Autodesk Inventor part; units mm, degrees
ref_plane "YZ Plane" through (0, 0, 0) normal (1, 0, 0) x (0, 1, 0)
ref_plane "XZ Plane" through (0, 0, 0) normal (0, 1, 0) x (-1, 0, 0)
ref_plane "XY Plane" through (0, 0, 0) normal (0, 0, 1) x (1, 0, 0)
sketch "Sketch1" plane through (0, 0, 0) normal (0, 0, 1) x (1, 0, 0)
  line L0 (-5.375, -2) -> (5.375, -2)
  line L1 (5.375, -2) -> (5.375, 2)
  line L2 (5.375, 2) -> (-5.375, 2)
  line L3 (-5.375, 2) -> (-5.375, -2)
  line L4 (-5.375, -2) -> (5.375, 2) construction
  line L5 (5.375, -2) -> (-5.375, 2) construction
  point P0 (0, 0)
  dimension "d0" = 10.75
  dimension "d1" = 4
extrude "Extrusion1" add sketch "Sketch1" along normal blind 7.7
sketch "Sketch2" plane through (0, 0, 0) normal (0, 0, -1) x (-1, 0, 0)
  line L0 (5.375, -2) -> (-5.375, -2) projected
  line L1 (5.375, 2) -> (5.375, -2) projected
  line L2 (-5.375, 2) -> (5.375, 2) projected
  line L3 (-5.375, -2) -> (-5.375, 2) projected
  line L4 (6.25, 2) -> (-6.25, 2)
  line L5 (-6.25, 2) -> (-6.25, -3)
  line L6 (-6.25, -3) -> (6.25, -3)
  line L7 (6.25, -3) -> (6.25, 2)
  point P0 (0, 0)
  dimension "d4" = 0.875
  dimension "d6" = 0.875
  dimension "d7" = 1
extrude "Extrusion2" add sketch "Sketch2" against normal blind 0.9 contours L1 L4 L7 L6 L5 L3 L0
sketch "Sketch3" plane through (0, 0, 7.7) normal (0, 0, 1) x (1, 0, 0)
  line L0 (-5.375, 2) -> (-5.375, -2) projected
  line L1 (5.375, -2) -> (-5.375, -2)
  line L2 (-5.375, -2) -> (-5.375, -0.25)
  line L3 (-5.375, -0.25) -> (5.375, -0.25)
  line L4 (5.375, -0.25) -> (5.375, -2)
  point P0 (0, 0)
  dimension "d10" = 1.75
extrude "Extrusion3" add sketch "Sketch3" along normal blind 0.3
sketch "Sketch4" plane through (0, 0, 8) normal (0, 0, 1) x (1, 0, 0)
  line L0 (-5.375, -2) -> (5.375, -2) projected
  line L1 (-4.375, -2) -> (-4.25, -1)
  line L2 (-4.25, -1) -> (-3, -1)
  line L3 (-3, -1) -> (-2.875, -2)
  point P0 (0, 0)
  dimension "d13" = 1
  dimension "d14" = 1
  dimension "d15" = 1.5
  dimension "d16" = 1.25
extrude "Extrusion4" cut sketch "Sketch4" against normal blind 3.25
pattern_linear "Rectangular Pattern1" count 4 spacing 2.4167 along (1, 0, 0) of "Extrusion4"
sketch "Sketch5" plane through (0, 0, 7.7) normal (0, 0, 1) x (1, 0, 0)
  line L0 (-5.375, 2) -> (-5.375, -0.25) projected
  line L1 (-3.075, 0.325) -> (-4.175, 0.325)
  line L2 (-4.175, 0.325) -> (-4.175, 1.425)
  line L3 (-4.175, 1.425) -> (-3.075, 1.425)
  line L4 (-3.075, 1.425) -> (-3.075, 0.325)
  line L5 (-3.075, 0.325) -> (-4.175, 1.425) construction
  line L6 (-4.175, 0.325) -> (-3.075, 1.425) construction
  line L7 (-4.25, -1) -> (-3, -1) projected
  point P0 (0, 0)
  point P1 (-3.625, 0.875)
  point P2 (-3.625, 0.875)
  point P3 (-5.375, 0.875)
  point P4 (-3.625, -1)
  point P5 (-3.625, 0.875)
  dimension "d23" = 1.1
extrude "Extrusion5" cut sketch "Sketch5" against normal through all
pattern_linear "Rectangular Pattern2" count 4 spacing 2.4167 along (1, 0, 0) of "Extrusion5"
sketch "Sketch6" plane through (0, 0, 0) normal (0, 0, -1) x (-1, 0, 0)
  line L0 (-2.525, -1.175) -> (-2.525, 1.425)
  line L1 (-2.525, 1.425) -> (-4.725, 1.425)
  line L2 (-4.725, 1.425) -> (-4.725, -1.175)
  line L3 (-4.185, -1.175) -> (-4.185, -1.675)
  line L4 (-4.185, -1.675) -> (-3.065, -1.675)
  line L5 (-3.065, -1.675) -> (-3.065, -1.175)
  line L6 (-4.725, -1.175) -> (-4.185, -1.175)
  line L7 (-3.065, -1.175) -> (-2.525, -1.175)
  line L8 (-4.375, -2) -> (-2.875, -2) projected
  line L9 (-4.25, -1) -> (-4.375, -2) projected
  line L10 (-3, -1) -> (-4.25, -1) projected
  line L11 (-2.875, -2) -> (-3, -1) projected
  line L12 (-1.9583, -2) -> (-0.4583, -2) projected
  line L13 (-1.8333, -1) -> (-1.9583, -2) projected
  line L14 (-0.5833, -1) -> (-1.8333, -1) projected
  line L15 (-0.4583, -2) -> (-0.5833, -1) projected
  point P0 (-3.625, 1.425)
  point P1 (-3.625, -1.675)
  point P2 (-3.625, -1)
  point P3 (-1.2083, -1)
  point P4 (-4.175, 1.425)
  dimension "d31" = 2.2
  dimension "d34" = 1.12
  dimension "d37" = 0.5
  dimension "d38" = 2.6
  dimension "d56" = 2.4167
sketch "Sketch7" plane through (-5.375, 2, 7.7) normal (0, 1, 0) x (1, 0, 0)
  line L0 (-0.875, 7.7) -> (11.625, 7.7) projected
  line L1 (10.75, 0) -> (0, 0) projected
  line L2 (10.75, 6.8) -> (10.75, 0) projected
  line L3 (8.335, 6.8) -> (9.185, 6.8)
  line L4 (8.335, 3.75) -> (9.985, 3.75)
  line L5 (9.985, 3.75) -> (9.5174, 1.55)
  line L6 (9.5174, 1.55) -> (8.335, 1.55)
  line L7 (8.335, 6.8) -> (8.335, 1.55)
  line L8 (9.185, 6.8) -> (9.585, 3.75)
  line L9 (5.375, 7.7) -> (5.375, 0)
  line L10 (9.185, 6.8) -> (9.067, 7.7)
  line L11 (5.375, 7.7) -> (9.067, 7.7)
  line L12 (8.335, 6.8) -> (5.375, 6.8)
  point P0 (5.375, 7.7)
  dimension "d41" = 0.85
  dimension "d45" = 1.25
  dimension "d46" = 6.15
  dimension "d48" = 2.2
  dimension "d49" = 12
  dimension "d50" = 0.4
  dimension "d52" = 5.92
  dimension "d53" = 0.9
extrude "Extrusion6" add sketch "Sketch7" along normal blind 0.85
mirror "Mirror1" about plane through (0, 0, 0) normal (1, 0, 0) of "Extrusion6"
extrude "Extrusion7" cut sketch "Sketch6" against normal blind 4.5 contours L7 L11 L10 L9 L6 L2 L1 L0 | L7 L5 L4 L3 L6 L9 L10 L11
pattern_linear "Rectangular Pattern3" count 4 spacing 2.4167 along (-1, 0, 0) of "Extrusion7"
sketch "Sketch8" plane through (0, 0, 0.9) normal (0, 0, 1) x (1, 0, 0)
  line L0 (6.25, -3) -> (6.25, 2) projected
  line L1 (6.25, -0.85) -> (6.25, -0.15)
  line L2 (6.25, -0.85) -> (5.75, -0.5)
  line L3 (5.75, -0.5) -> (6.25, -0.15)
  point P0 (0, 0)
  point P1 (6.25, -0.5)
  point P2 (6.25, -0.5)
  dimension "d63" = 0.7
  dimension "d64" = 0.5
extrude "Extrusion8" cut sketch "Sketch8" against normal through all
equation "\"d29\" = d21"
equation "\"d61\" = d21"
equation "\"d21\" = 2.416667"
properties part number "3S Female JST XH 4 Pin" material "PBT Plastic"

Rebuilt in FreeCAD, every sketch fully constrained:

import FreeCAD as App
import Part
import Sketcher

V = App.Vector
Q = App.Units.Quantity


def add_polygon(sketch, points):
    """Adds a closed chain of lines whose ends are joined by coincident constraints."""
    first, n = sketch.GeometryCount, len(points)
    for a, b in zip(points, points[1:] + points[:1]):
        sketch.addGeometry(Part.LineSegment(App.Vector(*a, 0), App.Vector(*b, 0)), False)
    for i in range(n):
        sketch.addConstraint(Sketcher.Constraint("Coincident", first + i, 2, first + (i + 1) % n, 1))

doc = App.newDocument("Part")
body = doc.addObject("PartDesign::Body", "Body")

# Sketch on XY plane
sketch1 = body.newObject("Sketcher::SketchObject", "Sketch")
sketch1.AttachmentSupport = (doc.getObject("XY_Plane"), [""])
sketch1.MapMode = "FlatFace"
add_polygon(sketch1, [(-5.4, 2), (-5.4, -2), (5.4, -2), (5.4, 2)])  # lines 0-3
sketch1.addConstraint(Sketcher.Constraint("Vertical", 0))
sketch1.addConstraint(Sketcher.Constraint("Horizontal", 1))
sketch1.addConstraint(Sketcher.Constraint("Vertical", 2))
sketch1.addConstraint(Sketcher.Constraint("Horizontal", 3))
sketch1.addConstraint(Sketcher.Constraint("Symmetric", 0, 2, 2, 2, -1, 1))
sketch1.addConstraint(Sketcher.Constraint("DistanceY", 0, 2, 0, 1, 4.0))
sketch1.addConstraint(Sketcher.Constraint("DistanceX", 1, 1, 1, 2, 10.75))
pad1 = body.newObject("PartDesign::Pad", "Pad")
pad1.Profile = sketch1
pad1.Length = 7.7

# Sketch on XY plane
sketch2 = body.newObject("Sketcher::SketchObject", "Sketch001")
sketch2.AttachmentSupport = (doc.getObject("XY_Plane"), [""])
sketch2.MapMode = "FlatFace"
add_polygon(sketch2, [(-5.4, 2), (-5.4, -2), (5.4, -2), (5.4, 2), (6.2, 2), (6.2, -3), (-6.2, -3), (-6.2, 2)])  # lines 0-7
sketch2.addConstraint(Sketcher.Constraint("Vertical", 0))
sketch2.addConstraint(Sketcher.Constraint("Horizontal", 1))
sketch2.addConstraint(Sketcher.Constraint("Vertical", 2))
sketch2.addConstraint(Sketcher.Constraint("Horizontal", 3))
sketch2.addConstraint(Sketcher.Constraint("Vertical", 4))
sketch2.addConstraint(Sketcher.Constraint("Horizontal", 5))
sketch2.addConstraint(Sketcher.Constraint("Vertical", 6))
sketch2.addConstraint(Sketcher.Constraint("Horizontal", 7))
sketch2.addConstraint(Sketcher.Constraint("Symmetric", 0, 2, 2, 2, -1, 1))
sketch2.addConstraint(Sketcher.Constraint("Symmetric", 3, 2, 6, 2, -2))
sketch2.addConstraint(Sketcher.Constraint("DistanceY", 4, 2, 1, 2, 1.0))
sketch2.addConstraint(Sketcher.Constraint("DistanceX", 3, 1, 3, 2, 0.875))
sketch2.addConstraint(Sketcher.Constraint("DistanceY", 0, 2, 0, 1, 4.0))
sketch2.addConstraint(Sketcher.Constraint("DistanceX", 5, 2, 5, 1, 12.5))
pad2 = body.newObject("PartDesign::Pad", "Pad001")
pad2.Profile = sketch2
pad2.Length = 0.9

# Sketch on XY plane
sketch3 = body.newObject("Sketcher::SketchObject", "Sketch002")
sketch3.AttachmentSupport = (doc.getObject("XY_Plane"), [""])
sketch3.MapMode = "FlatFace"
sketch3.AttachmentOffset = App.Placement(V(0, 0, 7.7), App.Rotation())
add_polygon(sketch3, [(5.4, -0.2), (-5.4, -0.2), (-5.4, -2), (5.4, -2)])  # lines 0-3
sketch3.addConstraint(Sketcher.Constraint("Horizontal", 0))
sketch3.addConstraint(Sketcher.Constraint("Vertical", 1))
sketch3.addConstraint(Sketcher.Constraint("Horizontal", 2))
sketch3.addConstraint(Sketcher.Constraint("Vertical", 3))
sketch3.addConstraint(Sketcher.Constraint("DistanceY", 1, 2, 1, 1, 1.75))
sketch3.addConstraint(Sketcher.Constraint("DistanceY", 1, 2, -1, 1, 2.0))
sketch3.addConstraint(Sketcher.Constraint("DistanceX", 0, 2, 0, 1, 10.75))
sketch3.addConstraint(Sketcher.Constraint("DistanceX", 0, 2, -1, 1, 5.375))
pad3 = body.newObject("PartDesign::Pad", "Pad002")
pad3.Profile = sketch3
pad3.Length = 0.3

# Sketch on XY plane
sketch4 = body.newObject("Sketcher::SketchObject", "Sketch003")
sketch4.AttachmentSupport = (doc.getObject("XY_Plane"), [""])
sketch4.MapMode = "FlatFace"
sketch4.AttachmentOffset = App.Placement(V(0, 0, 8), App.Rotation())
add_polygon(sketch4, [(-4.2, -1), (-4.4, -2), (-2.9, -2), (-3, -1)])  # lines 0-3
sketch4.addConstraint(Sketcher.Constraint("Horizontal", 1))
sketch4.addConstraint(Sketcher.Constraint("Horizontal", 3))
sketch4.addConstraint(Sketcher.Constraint("Equal", 0, 2))
sketch4.addConstraint(Sketcher.Constraint("DistanceX", 1, 1, 1, 2, 1.5))
sketch4.addConstraint(Sketcher.Constraint("DistanceY", 2, 2, -1, 1, 1.0))
sketch4.addConstraint(Sketcher.Constraint("DistanceY", 1, 2, 2, 2, 1.0))
sketch4.addConstraint(Sketcher.Constraint("DistanceX", 3, 2, 3, 1, 1.25))
sketch4.addConstraint(Sketcher.Constraint("DistanceX", 2, 2, -1, 1, 3.0))
pocket1 = body.newObject("PartDesign::Pocket", "Pocket")
pocket1.Profile = sketch4
pocket1.Length = 3.25
doc.recompute()

linearpattern = body.newObject("PartDesign::LinearPattern", "LinearPattern")
linearpattern.Originals = [pocket1]
linearpattern.Direction = (doc.getObject("X_Axis"), [""])
linearpattern.Mode = "offset"
linearpattern.Offset = 2.4167
linearpattern.Occurrences = 4
body.Tip = linearpattern

# Sketch on XY plane
sketch5 = body.newObject("Sketcher::SketchObject", "Sketch004")
sketch5.AttachmentSupport = (doc.getObject("XY_Plane"), [""])
sketch5.MapMode = "FlatFace"
sketch5.AttachmentOffset = App.Placement(V(0, 0, 7.7), App.Rotation())
add_polygon(sketch5, [(-4.2, 0.3), (-3.1, 0.3), (-3.1, 1.4), (-4.2, 1.4)])  # lines 0-3
sketch5.addConstraint(Sketcher.Constraint("Horizontal", 0))
sketch5.addConstraint(Sketcher.Constraint("Vertical", 1))
sketch5.addConstraint(Sketcher.Constraint("Horizontal", 2))
sketch5.addConstraint(Sketcher.Constraint("Vertical", 3))
sketch5.addConstraint(Sketcher.Constraint("Equal", 2, 1))
sketch5.addConstraint(Sketcher.Constraint("DistanceX", 0, 1, 0, 2, 1.1))
sketch5.addConstraint(Sketcher.Constraint("DistanceX", 0, 2, -1, 1, 3.075))
sketch5.addConstraint(Sketcher.Constraint("DistanceY", -1, 1, 0, 2, 0.325))
pocket2 = body.newObject("PartDesign::Pocket", "Pocket001")
pocket2.Profile = sketch5
pocket2.Type = "ThroughAll"
doc.recompute()

linearpattern2 = body.newObject("PartDesign::LinearPattern", "LinearPattern001")
linearpattern2.Originals = [pocket2]
linearpattern2.Direction = (doc.getObject("X_Axis"), [""])
linearpattern2.Mode = "offset"
linearpattern2.Offset = 2.4167
linearpattern2.Occurrences = 4
body.Tip = linearpattern2

# Sketch on XZ plane
sketch6 = body.newObject("Sketcher::SketchObject", "Sketch005")
sketch6.AttachmentSupport = (doc.getObject("XZ_Plane"), [""])
sketch6.MapMode = "FlatFace"
sketch6.AttachmentOffset = App.Placement(V(0, 0, -2), App.Rotation())
add_polygon(sketch6, [(3.69, 0), (0, 0), (0, 0.9), (2.96, 0.9), (2.96, 6.15), (4.14, 6.15), (4.61, 3.95), (4.21, 3.95), (3.81, 0.9)])  # lines 0-8
sketch6.addConstraint(Sketcher.Constraint("Horizontal", 0))
sketch6.addConstraint(Sketcher.Constraint("Vertical", 1))
sketch6.addConstraint(Sketcher.Constraint("Horizontal", 2))
sketch6.addConstraint(Sketcher.Constraint("Vertical", 3))
sketch6.addConstraint(Sketcher.Constraint("Horizontal", 4))
sketch6.addConstraint(Sketcher.Constraint("Horizontal", 6))
sketch6.addConstraint(Sketcher.Constraint("Coincident", 0, 2, -1, 1))
sketch6.addConstraint(Sketcher.Constraint("Parallel", 7, 8))
sketch6.addConstraint(Sketcher.Constraint("Horizontal", 2, 2, 7, 2))
sketch6.addConstraint(Sketcher.Constraint("DistanceX", 6, 2, 6, 1, 0.4))
sketch6.addConstraint(Sketcher.Constraint("DistanceY", 1, 1, 1, 2, 0.9))
sketch6.addConstraint(Sketcher.Constraint("DistanceY", 5, 2, 4, 2, 2.2))
sketch6.addConstraint(Sketcher.Constraint("DistanceX", 7, 2, 6, 2, 0.4))
sketch6.addConstraint(Sketcher.Constraint("DistanceY", -1, 1, 3, 2, 6.15))
sketch6.addConstraint(Sketcher.Constraint("Angle", 5, Q("-78.0006 deg")))
sketch6.addConstraint(Sketcher.Constraint("DistanceX", 3, 2, 6, 2, 1.25))
sketch6.addConstraint(Sketcher.Constraint("DistanceX", 2, 1, 2, 2, 2.96))
pad4 = body.newObject("PartDesign::Pad", "Pad003")
pad4.Profile = sketch6
pad4.Length = 0.85
pad4.Reversed = True
doc.recompute()

mirrored = body.newObject("PartDesign::Mirrored", "Mirrored")
mirrored.Originals = [pad4]
mirrored.MirrorPlane = (doc.getObject("YZ_Plane"), [""])
body.Tip = mirrored

# Sketch on XY plane
sketch7 = body.newObject("Sketcher::SketchObject", "Sketch006")
sketch7.AttachmentSupport = (doc.getObject("XY_Plane"), [""])
sketch7.MapMode = "FlatFace"
add_polygon(sketch7, [(2.5, -1.2), (2.5, 1.4), (4.7, 1.4), (4.7, -1.2), (4.2, -1.2), (4.2, -1.7), (3.1, -1.7), (3.1, -1.2)])  # lines 0-7
sketch7.addConstraint(Sketcher.Constraint("Vertical", 0))
sketch7.addConstraint(Sketcher.Constraint("Horizontal", 1))
sketch7.addConstraint(Sketcher.Constraint("Vertical", 2))
sketch7.addConstraint(Sketcher.Constraint("Horizontal", 3))
sketch7.addConstraint(Sketcher.Constraint("Vertical", 4))
sketch7.addConstraint(Sketcher.Constraint("Horizontal", 5))
sketch7.addConstraint(Sketcher.Constraint("Vertical", 6))
sketch7.addConstraint(Sketcher.Constraint("Horizontal", 7))
sketch7.addConstraint(Sketcher.Constraint("Horizontal", 3, 2, 6, 2))
sketch7.addConstraint(Sketcher.Constraint("Equal", 3, 7))
sketch7.addConstraint(Sketcher.Constraint("DistanceX", 1, 1, 1, 2, 2.2))
sketch7.addConstraint(Sketcher.Constraint("DistanceY", 0, 1, 0, 2, 2.6))
sketch7.addConstraint(Sketcher.Constraint("DistanceY", 4, 2, 4, 1, 0.5))
sketch7.addConstraint(Sketcher.Constraint("DistanceX", 5, 2, 5, 1, 1.12))
sketch7.addConstraint(Sketcher.Constraint("DistanceX", -1, 1, 0, 2, 2.525))
sketch7.addConstraint(Sketcher.Constraint("DistanceY", -1, 1, 0, 2, 1.425))
pocket3 = body.newObject("PartDesign::Pocket", "Pocket002")
pocket3.Profile = sketch7
pocket3.Length = 4.5
pocket3.Reversed = True
doc.recompute()

linearpattern3 = body.newObject("PartDesign::LinearPattern", "LinearPattern002")
linearpattern3.Originals = [pocket3]
linearpattern3.Direction = (doc.getObject("X_Axis"), [""])
linearpattern3.Mode = "offset"
linearpattern3.Offset = 2.4167
linearpattern3.Occurrences = 4
linearpattern3.Reversed = True
body.Tip = linearpattern3

# Sketch on XY plane
sketch8 = body.newObject("Sketcher::SketchObject", "Sketch007")
sketch8.AttachmentSupport = (doc.getObject("XY_Plane"), [""])
sketch8.MapMode = "FlatFace"
sketch8.AttachmentOffset = App.Placement(V(0, 0, 0.9), App.Rotation())
add_polygon(sketch8, [(5.8, -0.5), (6.2, -0.8), (6.2, -0.1)])  # lines 0-2
sketch8.addConstraint(Sketcher.Constraint("Vertical", 1))
sketch8.addConstraint(Sketcher.Constraint("Equal", 0, 2))
sketch8.addConstraint(Sketcher.Constraint("DistanceY", 1, 1, 1, 2, 0.7))
sketch8.addConstraint(Sketcher.Constraint("DistanceY", 2, 2, -1, 1, 0.5))
sketch8.addConstraint(Sketcher.Constraint("DistanceX", 2, 2, 0, 2, 0.5))
sketch8.addConstraint(Sketcher.Constraint("DistanceX", -1, 1, 0, 2, 6.25))
pocket4 = body.newObject("PartDesign::Pocket", "Pocket003")
pocket4.Profile = sketch8
pocket4.Type = "ThroughAll"

doc.recompute()
